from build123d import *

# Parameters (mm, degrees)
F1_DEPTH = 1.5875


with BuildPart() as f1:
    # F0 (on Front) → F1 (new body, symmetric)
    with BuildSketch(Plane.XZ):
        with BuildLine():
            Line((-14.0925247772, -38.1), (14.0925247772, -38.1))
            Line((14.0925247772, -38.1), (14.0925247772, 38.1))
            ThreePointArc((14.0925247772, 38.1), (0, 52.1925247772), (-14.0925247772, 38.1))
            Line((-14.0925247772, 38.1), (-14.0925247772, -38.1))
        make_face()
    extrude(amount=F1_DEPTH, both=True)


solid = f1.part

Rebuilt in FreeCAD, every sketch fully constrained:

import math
import FreeCAD as App
import Part
import Sketcher

V = App.Vector
Q = App.Units.Quantity

doc = App.newDocument("Part")
body = doc.addObject("PartDesign::Body", "Body")

# Sketch on XZ plane
sketch1 = doc.addObject("Sketcher::SketchObject", "Sketch")
body.addObject(sketch1)
sketch1.AttachmentSupport = (doc.XZ_Plane, [""])
sketch1.MapMode = "FlatFace"
sketch1.addGeometry(Part.LineSegment(V(-14, -38, 0), V(14, -38, 0)), False)
sketch1.addGeometry(Part.LineSegment(V(14, -38, 0), V(14, 38, 0)), False)
sketch1.addGeometry(Part.ArcOfCircle(Part.Circle(V(0, 38, 0), V(0, 0, 1), 14), math.radians(0), math.radians(180)), False)
sketch1.addGeometry(Part.LineSegment(V(-14, 38, 0), V(-14, -38, 0)), False)
sketch1.addConstraint(Sketcher.Constraint("Coincident", 0, 2, 1, 1))
sketch1.addConstraint(Sketcher.Constraint("Tangent", 1, 2, 2, 1))
sketch1.addConstraint(Sketcher.Constraint("Tangent", 2, 2, 3, 1))
sketch1.addConstraint(Sketcher.Constraint("Coincident", 3, 2, 0, 1))
sketch1.addConstraint(Sketcher.Constraint("Horizontal", 0))
sketch1.addConstraint(Sketcher.Constraint("Vertical", 1))
sketch1.addConstraint(Sketcher.Constraint("Vertical", 3))
sketch1.addConstraint(Sketcher.Constraint("Symmetric", 0, 2, 2, 2, -1, 1))
sketch1.addConstraint(Sketcher.Constraint("DistanceY", 1, 1, 1, 2, Q("3 in")))
sketch1.addConstraint(Sketcher.Constraint("Radius", 2, Q("14.092525 mm")))
pad1 = doc.addObject("PartDesign::Pad", "Pad")
body.addObject(pad1)
pad1.Profile = sketch1
pad1.Length = Q("0.125 in")
pad1.Midplane = True

doc.recompute()
